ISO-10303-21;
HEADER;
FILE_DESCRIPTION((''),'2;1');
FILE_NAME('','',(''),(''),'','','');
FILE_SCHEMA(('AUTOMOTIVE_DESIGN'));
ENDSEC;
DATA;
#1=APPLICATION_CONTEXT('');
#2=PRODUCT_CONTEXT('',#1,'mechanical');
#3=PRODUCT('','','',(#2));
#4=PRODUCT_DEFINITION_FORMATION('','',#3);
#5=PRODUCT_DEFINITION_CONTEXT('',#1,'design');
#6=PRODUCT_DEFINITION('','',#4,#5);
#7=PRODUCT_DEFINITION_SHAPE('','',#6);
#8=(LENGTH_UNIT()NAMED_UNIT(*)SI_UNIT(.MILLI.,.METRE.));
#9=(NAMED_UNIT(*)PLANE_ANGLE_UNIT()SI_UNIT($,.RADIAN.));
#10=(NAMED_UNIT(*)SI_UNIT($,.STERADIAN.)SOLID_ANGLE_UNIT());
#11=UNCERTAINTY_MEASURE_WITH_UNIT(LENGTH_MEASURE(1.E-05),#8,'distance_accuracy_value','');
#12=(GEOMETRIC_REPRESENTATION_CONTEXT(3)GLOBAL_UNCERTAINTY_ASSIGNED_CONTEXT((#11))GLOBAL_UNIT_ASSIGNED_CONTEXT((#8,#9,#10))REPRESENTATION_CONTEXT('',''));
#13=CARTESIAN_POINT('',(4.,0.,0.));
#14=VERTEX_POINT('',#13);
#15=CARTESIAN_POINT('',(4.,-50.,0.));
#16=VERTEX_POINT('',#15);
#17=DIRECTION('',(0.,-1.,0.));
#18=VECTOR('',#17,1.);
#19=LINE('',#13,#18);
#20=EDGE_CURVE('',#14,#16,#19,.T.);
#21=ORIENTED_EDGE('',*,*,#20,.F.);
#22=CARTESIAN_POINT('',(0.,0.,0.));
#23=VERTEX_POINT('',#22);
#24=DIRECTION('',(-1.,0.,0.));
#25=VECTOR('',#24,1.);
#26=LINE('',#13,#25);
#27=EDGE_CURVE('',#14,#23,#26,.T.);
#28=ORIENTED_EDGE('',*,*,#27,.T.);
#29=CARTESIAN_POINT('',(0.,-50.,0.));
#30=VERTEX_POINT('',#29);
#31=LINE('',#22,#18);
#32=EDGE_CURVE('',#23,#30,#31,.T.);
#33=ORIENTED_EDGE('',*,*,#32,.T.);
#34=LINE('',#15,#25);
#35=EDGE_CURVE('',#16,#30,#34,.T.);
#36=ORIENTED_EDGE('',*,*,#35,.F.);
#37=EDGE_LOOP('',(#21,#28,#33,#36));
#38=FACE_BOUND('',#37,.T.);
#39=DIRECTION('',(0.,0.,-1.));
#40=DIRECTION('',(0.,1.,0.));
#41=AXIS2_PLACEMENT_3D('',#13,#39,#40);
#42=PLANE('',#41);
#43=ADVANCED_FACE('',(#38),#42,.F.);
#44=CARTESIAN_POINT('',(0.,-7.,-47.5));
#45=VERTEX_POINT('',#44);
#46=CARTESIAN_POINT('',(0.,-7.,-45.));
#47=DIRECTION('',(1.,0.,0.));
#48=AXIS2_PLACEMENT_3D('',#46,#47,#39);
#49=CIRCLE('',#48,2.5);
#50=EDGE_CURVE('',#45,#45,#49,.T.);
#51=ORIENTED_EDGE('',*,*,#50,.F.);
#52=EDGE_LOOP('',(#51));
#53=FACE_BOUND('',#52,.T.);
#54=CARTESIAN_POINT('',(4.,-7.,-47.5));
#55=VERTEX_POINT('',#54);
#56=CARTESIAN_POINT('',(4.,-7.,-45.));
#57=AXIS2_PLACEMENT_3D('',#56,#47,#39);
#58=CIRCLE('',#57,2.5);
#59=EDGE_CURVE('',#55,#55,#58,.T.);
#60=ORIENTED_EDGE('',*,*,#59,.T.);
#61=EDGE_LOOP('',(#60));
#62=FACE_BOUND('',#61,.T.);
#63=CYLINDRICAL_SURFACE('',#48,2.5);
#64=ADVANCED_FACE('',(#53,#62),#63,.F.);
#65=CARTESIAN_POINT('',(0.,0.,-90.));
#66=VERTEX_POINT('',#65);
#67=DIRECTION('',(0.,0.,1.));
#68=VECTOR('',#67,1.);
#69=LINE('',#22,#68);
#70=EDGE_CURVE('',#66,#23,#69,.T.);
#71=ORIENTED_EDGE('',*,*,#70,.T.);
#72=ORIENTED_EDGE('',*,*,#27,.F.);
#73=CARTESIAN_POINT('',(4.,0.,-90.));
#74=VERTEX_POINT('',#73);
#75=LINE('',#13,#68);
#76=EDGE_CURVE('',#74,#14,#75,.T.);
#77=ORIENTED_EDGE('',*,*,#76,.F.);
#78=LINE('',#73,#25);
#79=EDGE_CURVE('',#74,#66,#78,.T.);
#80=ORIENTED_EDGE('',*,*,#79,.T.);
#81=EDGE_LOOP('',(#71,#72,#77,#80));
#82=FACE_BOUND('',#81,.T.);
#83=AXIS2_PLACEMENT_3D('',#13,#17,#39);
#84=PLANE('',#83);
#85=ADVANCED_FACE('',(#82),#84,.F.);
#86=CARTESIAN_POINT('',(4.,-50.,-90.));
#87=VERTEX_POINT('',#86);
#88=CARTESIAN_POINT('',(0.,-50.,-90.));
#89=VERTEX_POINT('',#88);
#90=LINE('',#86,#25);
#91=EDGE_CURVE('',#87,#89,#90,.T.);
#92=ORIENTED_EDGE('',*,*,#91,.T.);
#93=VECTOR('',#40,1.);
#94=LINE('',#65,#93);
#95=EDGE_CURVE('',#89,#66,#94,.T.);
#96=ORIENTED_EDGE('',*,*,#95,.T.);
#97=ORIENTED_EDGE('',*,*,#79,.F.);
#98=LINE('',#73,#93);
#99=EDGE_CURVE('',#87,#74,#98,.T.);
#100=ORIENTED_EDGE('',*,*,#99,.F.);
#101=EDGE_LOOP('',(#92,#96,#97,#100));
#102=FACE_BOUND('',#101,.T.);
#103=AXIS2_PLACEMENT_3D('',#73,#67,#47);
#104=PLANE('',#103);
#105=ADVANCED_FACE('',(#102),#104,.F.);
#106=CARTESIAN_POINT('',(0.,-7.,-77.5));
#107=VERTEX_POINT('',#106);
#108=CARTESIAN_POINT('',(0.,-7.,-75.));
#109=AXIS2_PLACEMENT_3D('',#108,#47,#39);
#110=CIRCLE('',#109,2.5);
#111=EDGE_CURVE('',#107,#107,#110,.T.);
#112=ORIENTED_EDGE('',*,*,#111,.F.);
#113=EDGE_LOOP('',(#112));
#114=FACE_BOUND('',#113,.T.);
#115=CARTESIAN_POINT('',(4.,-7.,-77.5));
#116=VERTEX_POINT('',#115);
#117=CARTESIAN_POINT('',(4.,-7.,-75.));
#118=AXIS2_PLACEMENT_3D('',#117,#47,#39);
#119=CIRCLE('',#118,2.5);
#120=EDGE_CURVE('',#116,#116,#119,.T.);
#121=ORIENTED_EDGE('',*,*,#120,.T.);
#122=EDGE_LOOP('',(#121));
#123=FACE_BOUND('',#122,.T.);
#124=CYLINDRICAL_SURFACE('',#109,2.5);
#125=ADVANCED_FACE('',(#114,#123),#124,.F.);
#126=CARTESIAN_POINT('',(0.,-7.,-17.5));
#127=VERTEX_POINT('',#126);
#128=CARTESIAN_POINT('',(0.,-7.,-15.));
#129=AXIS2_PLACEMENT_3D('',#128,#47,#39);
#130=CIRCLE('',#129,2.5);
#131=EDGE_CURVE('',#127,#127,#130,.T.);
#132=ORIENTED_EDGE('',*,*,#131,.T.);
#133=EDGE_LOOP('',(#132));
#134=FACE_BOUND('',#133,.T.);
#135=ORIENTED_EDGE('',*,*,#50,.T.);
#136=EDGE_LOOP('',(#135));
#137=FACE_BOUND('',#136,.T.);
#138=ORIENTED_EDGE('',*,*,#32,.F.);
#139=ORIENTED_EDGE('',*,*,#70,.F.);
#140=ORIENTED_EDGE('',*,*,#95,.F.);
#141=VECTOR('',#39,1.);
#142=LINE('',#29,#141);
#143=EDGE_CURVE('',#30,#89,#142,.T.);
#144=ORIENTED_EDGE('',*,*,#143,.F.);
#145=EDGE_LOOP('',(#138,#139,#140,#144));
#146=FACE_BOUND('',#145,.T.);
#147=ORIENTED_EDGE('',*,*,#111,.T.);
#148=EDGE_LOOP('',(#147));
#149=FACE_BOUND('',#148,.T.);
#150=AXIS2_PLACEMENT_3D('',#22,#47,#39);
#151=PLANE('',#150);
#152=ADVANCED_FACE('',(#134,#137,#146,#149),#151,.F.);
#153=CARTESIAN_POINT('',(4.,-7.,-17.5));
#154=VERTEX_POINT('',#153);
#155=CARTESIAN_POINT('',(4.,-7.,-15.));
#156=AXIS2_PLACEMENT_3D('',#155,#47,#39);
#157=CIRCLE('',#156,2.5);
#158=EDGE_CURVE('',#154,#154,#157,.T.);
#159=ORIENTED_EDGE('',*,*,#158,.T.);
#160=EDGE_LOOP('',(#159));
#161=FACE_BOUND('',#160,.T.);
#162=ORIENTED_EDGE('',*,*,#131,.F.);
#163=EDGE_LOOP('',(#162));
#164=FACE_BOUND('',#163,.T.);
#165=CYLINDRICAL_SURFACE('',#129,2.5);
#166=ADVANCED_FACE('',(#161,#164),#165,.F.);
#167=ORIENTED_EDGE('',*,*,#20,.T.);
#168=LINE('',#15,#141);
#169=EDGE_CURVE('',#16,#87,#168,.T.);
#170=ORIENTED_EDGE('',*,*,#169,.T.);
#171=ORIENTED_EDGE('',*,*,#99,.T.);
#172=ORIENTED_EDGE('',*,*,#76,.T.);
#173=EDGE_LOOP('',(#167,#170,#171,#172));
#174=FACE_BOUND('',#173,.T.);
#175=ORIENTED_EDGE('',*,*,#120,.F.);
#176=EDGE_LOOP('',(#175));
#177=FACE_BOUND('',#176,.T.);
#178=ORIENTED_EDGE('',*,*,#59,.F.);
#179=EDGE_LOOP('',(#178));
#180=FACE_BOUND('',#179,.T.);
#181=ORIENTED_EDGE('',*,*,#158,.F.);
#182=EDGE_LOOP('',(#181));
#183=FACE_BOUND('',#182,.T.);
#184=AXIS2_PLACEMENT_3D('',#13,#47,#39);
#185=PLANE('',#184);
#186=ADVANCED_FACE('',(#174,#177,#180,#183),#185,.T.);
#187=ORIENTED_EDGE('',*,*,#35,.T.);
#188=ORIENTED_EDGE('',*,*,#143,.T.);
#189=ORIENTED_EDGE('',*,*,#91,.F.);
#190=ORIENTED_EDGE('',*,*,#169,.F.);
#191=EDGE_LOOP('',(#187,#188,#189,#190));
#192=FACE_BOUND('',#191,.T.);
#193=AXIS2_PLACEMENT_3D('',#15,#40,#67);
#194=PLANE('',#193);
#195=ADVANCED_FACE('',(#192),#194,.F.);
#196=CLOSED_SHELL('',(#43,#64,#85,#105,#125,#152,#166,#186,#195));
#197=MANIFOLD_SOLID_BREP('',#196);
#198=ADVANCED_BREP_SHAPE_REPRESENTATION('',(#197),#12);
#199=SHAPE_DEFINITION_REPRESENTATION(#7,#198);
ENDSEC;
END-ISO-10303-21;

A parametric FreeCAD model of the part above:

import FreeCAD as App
import Part
import Sketcher

doc = App.newDocument("Part")
body = doc.addObject("PartDesign::Body", "Body")

sketch1 = body.newObject("Sketcher::SketchObject", "Sketch")
sketch1.AttachmentSupport = (doc.getObject("YZ_Plane"), [""])
sketch1.MapMode = "FlatFace"
sketch1.addGeometry(Part.LineSegment(App.Vector(0, 0, 0), App.Vector(-50, 0, 0)), False)
sketch1.addGeometry(Part.LineSegment(App.Vector(-50, 0, 0), App.Vector(-50, -90, 0)), False)
sketch1.addGeometry(Part.LineSegment(App.Vector(-50, -90, 0), App.Vector(0, -90, 0)), False)
sketch1.addGeometry(Part.LineSegment(App.Vector(0, -90, 0), App.Vector(0, 0, 0)), False)
sketch1.addConstraint(Sketcher.Constraint("Coincident", 0, 2, 1, 1))
sketch1.addConstraint(Sketcher.Constraint("Coincident", 1, 2, 2, 1))
sketch1.addConstraint(Sketcher.Constraint("Coincident", 2, 2, 3, 1))
sketch1.addConstraint(Sketcher.Constraint("Coincident", 3, 2, 0, 1))
sketch1.addConstraint(Sketcher.Constraint("Horizontal", 0))
sketch1.addConstraint(Sketcher.Constraint("Vertical", 1))
sketch1.addConstraint(Sketcher.Constraint("Horizontal", 2))
sketch1.addConstraint(Sketcher.Constraint("Vertical", 3))
sketch1.addConstraint(Sketcher.Constraint("Coincident", 3, 2, -1, 1))
sketch1.addConstraint(Sketcher.Constraint("DistanceX", 0, 2, 0, 1, 50.0))
sketch1.addConstraint(Sketcher.Constraint("DistanceY", 1, 2, 1, 1, 90.0))
pad1 = body.newObject("PartDesign::Pad", "Pad")
pad1.Profile = sketch1
pad1.Length = 4

sketch2 = body.newObject("Sketcher::SketchObject", "Sketch001")
sketch2.AttachmentSupport = (doc.getObject("YZ_Plane"), [""])
sketch2.MapMode = "FlatFace"
sketch2.AttachmentOffset = App.Placement(App.Vector(0, 0, 4), App.Rotation())
sketch2.addGeometry(Part.Circle(App.Vector(-7, -15, 0), App.Vector(0, 0, 1), 2.5), False)
sketch2.addGeometry(Part.Circle(App.Vector(-7, -45, 0), App.Vector(0, 0, 1), 2.5), False)
sketch2.addGeometry(Part.Circle(App.Vector(-7, -75, 0), App.Vector(0, 0, 1), 2.5), False)
sketch2.addConstraint(Sketcher.Constraint("Equal", 0, 1))
sketch2.addConstraint(Sketcher.Constraint("Equal", 1, 2))
sketch2.addConstraint(Sketcher.Constraint("Vertical", 0, 3, 1, 3))
sketch2.addConstraint(Sketcher.Constraint("Vertical", 1, 3, 2, 3))
sketch2.addConstraint(Sketcher.Constraint("Diameter", 0, 5.0))
sketch2.addConstraint(Sketcher.Constraint("DistanceX", 0, 3, -1, 1, 7.0))
sketch2.addConstraint(Sketcher.Constraint("DistanceY", 0, 3, -1, 1, 15.0))
sketch2.addConstraint(Sketcher.Constraint("DistanceY", 1, 3, -1, 1, 45.0))
sketch2.addConstraint(Sketcher.Constraint("DistanceY", 2, 3, -1, 1, 75.0))
pocket1 = body.newObject("PartDesign::Pocket", "Pocket")
pocket1.Profile = sketch2
pocket1.Type = "ThroughAll"
pocket1.Midplane = True

doc.recompute()
